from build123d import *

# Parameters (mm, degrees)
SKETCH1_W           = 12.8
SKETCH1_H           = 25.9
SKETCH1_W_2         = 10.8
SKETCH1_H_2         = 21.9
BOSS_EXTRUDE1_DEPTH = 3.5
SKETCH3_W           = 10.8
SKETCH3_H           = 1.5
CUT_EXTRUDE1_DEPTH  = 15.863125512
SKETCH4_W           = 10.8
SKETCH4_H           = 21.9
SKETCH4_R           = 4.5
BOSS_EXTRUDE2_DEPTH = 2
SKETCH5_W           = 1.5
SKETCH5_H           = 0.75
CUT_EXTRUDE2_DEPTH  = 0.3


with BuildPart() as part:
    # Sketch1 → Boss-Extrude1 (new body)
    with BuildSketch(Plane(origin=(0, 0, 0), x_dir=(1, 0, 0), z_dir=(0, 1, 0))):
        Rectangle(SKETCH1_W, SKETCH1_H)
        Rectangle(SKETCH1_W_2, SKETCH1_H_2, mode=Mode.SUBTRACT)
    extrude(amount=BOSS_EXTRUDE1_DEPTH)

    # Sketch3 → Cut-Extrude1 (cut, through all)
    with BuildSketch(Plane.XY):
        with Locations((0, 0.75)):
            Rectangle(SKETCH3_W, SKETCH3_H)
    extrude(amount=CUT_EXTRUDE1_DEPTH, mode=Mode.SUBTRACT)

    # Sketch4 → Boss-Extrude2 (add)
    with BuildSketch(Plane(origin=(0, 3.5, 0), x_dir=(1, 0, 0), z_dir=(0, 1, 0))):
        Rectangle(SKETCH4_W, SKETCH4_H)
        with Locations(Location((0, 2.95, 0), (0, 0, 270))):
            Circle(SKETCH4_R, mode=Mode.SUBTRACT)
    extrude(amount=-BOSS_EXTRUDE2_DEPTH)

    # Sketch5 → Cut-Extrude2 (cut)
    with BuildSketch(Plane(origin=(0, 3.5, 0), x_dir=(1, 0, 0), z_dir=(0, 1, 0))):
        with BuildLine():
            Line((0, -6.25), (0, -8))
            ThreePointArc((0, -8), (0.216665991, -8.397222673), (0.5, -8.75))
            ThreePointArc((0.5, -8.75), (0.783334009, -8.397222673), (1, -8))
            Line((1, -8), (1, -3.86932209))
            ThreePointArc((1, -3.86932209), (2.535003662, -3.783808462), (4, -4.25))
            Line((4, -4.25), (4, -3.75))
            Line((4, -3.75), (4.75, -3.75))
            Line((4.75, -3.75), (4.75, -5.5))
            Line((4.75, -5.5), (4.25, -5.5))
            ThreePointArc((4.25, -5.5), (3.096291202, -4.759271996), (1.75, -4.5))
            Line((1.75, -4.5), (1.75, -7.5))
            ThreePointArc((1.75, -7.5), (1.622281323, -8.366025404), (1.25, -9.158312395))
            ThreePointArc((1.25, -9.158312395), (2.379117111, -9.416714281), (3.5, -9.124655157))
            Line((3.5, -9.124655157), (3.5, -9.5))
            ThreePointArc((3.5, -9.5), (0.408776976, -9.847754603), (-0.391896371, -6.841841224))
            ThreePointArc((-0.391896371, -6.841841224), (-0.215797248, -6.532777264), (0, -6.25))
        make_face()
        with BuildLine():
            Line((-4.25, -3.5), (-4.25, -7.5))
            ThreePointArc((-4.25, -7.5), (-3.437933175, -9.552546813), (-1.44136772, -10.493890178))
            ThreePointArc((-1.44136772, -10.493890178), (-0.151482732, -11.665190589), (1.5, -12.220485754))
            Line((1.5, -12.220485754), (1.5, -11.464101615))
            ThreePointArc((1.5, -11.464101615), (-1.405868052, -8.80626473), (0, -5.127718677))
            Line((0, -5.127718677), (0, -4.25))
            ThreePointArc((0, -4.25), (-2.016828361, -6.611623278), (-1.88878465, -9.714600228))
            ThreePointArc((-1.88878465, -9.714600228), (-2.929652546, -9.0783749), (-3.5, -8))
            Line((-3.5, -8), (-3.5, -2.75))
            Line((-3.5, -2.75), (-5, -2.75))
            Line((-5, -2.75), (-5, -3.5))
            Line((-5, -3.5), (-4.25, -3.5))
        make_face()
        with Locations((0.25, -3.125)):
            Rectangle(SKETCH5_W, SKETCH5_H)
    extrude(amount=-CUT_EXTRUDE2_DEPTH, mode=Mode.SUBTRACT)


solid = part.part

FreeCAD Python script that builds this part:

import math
import FreeCAD as App
import Part
import Sketcher
from FreeCAD import Vector
Q = App.Units.Quantity

doc = App.newDocument("Part")
body = doc.addObject("PartDesign::Body", "Body")

sketch1 = doc.addObject("Sketcher::SketchObject", "Sketch")
body.addObject(sketch1)
sketch1.AttachmentSupport = (doc.XZ_Plane, [""])
sketch1.MapMode = "FlatFace"
sketch1.addGeometry([
    Part.LineSegment(Vector(-6.4, -12.95, 0), Vector(-6.4, 12.95, 0)),
    Part.LineSegment(Vector(-6.4, 12.95, 0), Vector(6.4, 12.95, 0)),
    Part.LineSegment(Vector(6.4, 12.95, 0), Vector(6.4, -12.95, 0)),
    Part.LineSegment(Vector(6.4, -12.95, 0), Vector(-6.4, -12.95, 0)),
    Part.LineSegment(Vector(5.4, 10.95, 0), Vector(-5.4, 10.95, 0)),
    Part.LineSegment(Vector(-5.4, 10.95, 0), Vector(-5.4, -10.95, 0)),
    Part.LineSegment(Vector(-5.4, -10.95, 0), Vector(5.4, -10.95, 0)),
    Part.LineSegment(Vector(5.4, -10.95, 0), Vector(5.4, 10.95, 0)),
], False)
sketch1.addConstraint([
    Sketcher.Constraint("Coincident", 0, 2, 1, 1),
    Sketcher.Constraint("Coincident", 1, 2, 2, 1),
    Sketcher.Constraint("Coincident", 2, 2, 3, 1),
    Sketcher.Constraint("Coincident", 3, 2, 0, 1),
    Sketcher.Constraint("Coincident", 4, 2, 5, 1),
    Sketcher.Constraint("Coincident", 5, 2, 6, 1),
    Sketcher.Constraint("Coincident", 6, 2, 7, 1),
    Sketcher.Constraint("Coincident", 7, 2, 4, 1),
    Sketcher.Constraint("Vertical", 0),
    Sketcher.Constraint("Horizontal", 1),
    Sketcher.Constraint("Vertical", 2),
    Sketcher.Constraint("Horizontal", 3),
    Sketcher.Constraint("Horizontal", 4),
    Sketcher.Constraint("Vertical", 5),
    Sketcher.Constraint("Horizontal", 6),
    Sketcher.Constraint("Vertical", 7),
    Sketcher.Constraint("Symmetric", 0, 2, 2, 2, -1, 1),
    Sketcher.Constraint("Symmetric", 4, 2, 6, 2, -1, 1),
    Sketcher.Constraint("DistanceX", 1, 1, 1, 2, Q("12.8 mm")),
    Sketcher.Constraint("DistanceX", 4, 2, 4, 1, Q("10.8 mm")),
    Sketcher.Constraint("DistanceY", 0, 1, 0, 2, Q("25.9 mm")),
    Sketcher.Constraint("DistanceY", 5, 2, 5, 1, Q("21.9 mm")),
])
pad1 = doc.addObject("PartDesign::Pad", "Pad")
body.addObject(pad1)
pad1.Profile = sketch1
pad1.Length = 3.5
pad1.Reversed = True

sketch2 = doc.addObject("Sketcher::SketchObject", "Sketch001")
body.addObject(sketch2)
sketch2.AttachmentSupport = (doc.XY_Plane, [""])
sketch2.MapMode = "FlatFace"
sketch2.addGeometry([
    Part.LineSegment(Vector(-5.4, 1.5, 0), Vector(-5.4, 0, 0)),
    Part.LineSegment(Vector(-5.4, 0, 0), Vector(5.4, 0, 0)),
    Part.LineSegment(Vector(5.4, 0, 0), Vector(5.4, 1.5, 0)),
    Part.LineSegment(Vector(5.4, 1.5, 0), Vector(-5.4, 1.5, 0)),
], False)
sketch2.addConstraint([
    Sketcher.Constraint("Coincident", 0, 2, 1, 1),
    Sketcher.Constraint("Coincident", 1, 2, 2, 1),
    Sketcher.Constraint("Coincident", 2, 2, 3, 1),
    Sketcher.Constraint("Coincident", 3, 2, 0, 1),
    Sketcher.Constraint("Vertical", 0),
    Sketcher.Constraint("Horizontal", 1),
    Sketcher.Constraint("Vertical", 2),
    Sketcher.Constraint("Horizontal", 3),
    Sketcher.Constraint("Symmetric", 0, 2, 1, 2, -1, 1),
    Sketcher.Constraint("DistanceX", 1, 1, 1, 2, Q("10.8 mm")),
    Sketcher.Constraint("DistanceY", 0, 2, 0, 1, Q("1.5 mm")),
])
pocket1 = doc.addObject("PartDesign::Pocket", "Pocket")
body.addObject(pocket1)
pocket1.Profile = sketch2
pocket1.Type = "ThroughAll"
pocket1.Reversed = True

sketch3 = doc.addObject("Sketcher::SketchObject", "Sketch002")
body.addObject(sketch3)
sketch3.AttachmentSupport = (doc.XZ_Plane, [""])
sketch3.MapMode = "FlatFace"
sketch3.AttachmentOffset = App.Placement(Vector(0, 0, -3.5), App.Rotation())
sketch3.addGeometry([
    Part.LineSegment(Vector(-5.4, -10.95, 0), Vector(-5.4, 10.95, 0)),
    Part.LineSegment(Vector(-5.4, 10.95, 0), Vector(5.4, 10.95, 0)),
    Part.LineSegment(Vector(5.4, 10.95, 0), Vector(5.4, -10.95, 0)),
    Part.LineSegment(Vector(5.4, -10.95, 0), Vector(-5.4, -10.95, 0)),
    Part.Circle(Vector(0, -2.95, 0), Vector(0, 0, 1), 4.5),
], False)
sketch3.addConstraint([
    Sketcher.Constraint("Coincident", 0, 2, 1, 1),
    Sketcher.Constraint("Coincident", 1, 2, 2, 1),
    Sketcher.Constraint("Coincident", 2, 2, 3, 1),
    Sketcher.Constraint("Coincident", 3, 2, 0, 1),
    Sketcher.Constraint("Vertical", 0),
    Sketcher.Constraint("Horizontal", 1),
    Sketcher.Constraint("Vertical", 2),
    Sketcher.Constraint("Horizontal", 3),
    Sketcher.Constraint("Symmetric", 0, 2, 2, 2, -1, 1),
    Sketcher.Constraint("PointOnObject", 4, 3, -2),
    Sketcher.Constraint("Diameter", 4, Q("9 mm")),
    Sketcher.Constraint("DistanceX", 1, 1, 1, 2, Q("10.8 mm")),
    Sketcher.Constraint("DistanceY", 0, 1, 0, 2, Q("21.9 mm")),
    Sketcher.Constraint("DistanceY", 2, 2, 4, 3, Q("8 mm")),
])
pad2 = doc.addObject("PartDesign::Pad", "Pad001")
body.addObject(pad2)
pad2.Profile = sketch3
pad2.Length = 2

sketch4 = doc.addObject("Sketcher::SketchObject", "Sketch003")
body.addObject(sketch4)
sketch4.AttachmentSupport = (doc.XZ_Plane, [""])
sketch4.MapMode = "FlatFace"
sketch4.AttachmentOffset = App.Placement(Vector(0, 0, -3.5), App.Rotation())
sketch4.addGeometry([
    Part.LineSegment(Vector(0, 8, 0), Vector(0, 6.25, 0)),
    Part.ArcOfCircle(Part.Circle(Vector(2, 8, 0), Vector(0, 0, 1), 2.657536), math.radians(-154.163685), math.radians(-138.814075)),
    Part.ArcOfCircle(Part.Circle(Vector(1.752606, 7.880211, 0), Vector(0, 0, 1), 2.382667), math.radians(42.829708), math.radians(205.836315)),
    Part.LineSegment(Vector(3.5, 9.5, 0), Vector(3.5, 9.124655, 0)),
    Part.ArcOfCircle(Part.Circle(Vector(2.342665, 6.97989, 0), Vector(0, 0, 1), 2.437097), math.radians(61.648299), math.radians(116.63768)),
    Part.ArcOfCircle(Part.Circle(Vector(-1.25, 7.5, 0), Vector(0, 0, 1), 3), math.radians(0), math.radians(33.55731)),
    Part.LineSegment(Vector(1.75, 7.5, 0), Vector(1.75, 4.5, 0)),
    Part.ArcOfCircle(Part.Circle(Vector(1.75, 8.125, 0), Vector(0, 0, 1), 3.625), math.radians(-90), math.radians(-46.397181)),
    Part.LineSegment(Vector(4.25, 5.5, 0), Vector(4.75, 5.5, 0)),
    Part.LineSegment(Vector(4.75, 5.5, 0), Vector(4.75, 3.75, 0)),
    Part.LineSegment(Vector(4.75, 3.75, 0), Vector(4, 3.75, 0)),
    Part.LineSegment(Vector(4, 3.75, 0), Vector(4, 4.25, 0)),
    Part.ArcOfCircle(Part.Circle(Vector(2, 8, 0), Vector(0, 0, 1), 4.25), math.radians(-103.608961), math.radians(-61.927513)),
    Part.LineSegment(Vector(1, 3.869322, 0), Vector(1, 8, 0)),
    Part.ArcOfCircle(Part.Circle(Vector(-1.342665, 6.97989, 0), Vector(0, 0, 1), 2.555133), math.radians(23.530647), math.radians(43.849488)),
    Part.ArcOfCircle(Part.Circle(Vector(2.342665, 6.97989, 0), Vector(0, 0, 1), 2.555133), math.radians(136.150512), math.radians(156.469353)),
    Part.LineSegment(Vector(-4.25, 3.5, 0), Vector(-4.25, 7.5, 0)),
    Part.ArcOfCircle(Part.Circle(Vector(-1.25, 7.5, 0), Vector(0, 0, 1), 3), math.radians(93.657337), math.radians(180)),
    Part.ArcOfCircle(Part.Circle(Vector(2, 8, 0), Vector(0, 0, 1), 4.25), math.radians(96.756327), math.radians(144.06991)),
    Part.LineSegment(Vector(1.5, 12.220486, 0), Vector(1.5, 11.464102, 0)),
    Part.ArcOfCircle(Part.Circle(Vector(2, 8, 0), Vector(0, 0, 1), 3.5), math.radians(98.213211), math.radians(235.150095)),
    Part.LineSegment(Vector(0, 5.127719, 0), Vector(0, 4.25, 0)),
    Part.ArcOfCircle(Part.Circle(Vector(2, 8, 0), Vector(0, 0, 1), 4.25), math.radians(156.206885), math.radians(241.927513)),
    Part.ArcOfCircle(Part.Circle(Vector(-1.25, 7.5, 0), Vector(0, 0, 1), 2.304886), math.radians(106.089805), math.radians(167.471192)),
    Part.LineSegment(Vector(-3.5, 8, 0), Vector(-3.5, 2.75, 0)),
    Part.LineSegment(Vector(-3.5, 2.75, 0), Vector(-5, 2.75, 0)),
    Part.LineSegment(Vector(-5, 2.75, 0), Vector(-5, 3.5, 0)),
    Part.LineSegment(Vector(-5, 3.5, 0), Vector(-4.25, 3.5, 0)),
    Part.LineSegment(Vector(-0.5, 2.75, 0), Vector(-0.5, 3.5, 0)),
    Part.LineSegment(Vector(-0.5, 3.5, 0), Vector(1, 3.5, 0)),
    Part.LineSegment(Vector(1, 3.5, 0), Vector(1, 2.75, 0)),
    Part.LineSegment(Vector(1, 2.75, 0), Vector(-0.5, 2.75, 0)),
], False)
sketch4.addConstraint([
    Sketcher.Constraint("Coincident", 0, 2, 1, 2),
    Sketcher.Constraint("Tangent", 1, 1, 2, 2),
    Sketcher.Constraint("Coincident", 2, 1, 3, 1),
    Sketcher.Constraint("Coincident", 3, 2, 4, 1),
    Sketcher.Constraint("Coincident", 4, 2, 5, 2),
    Sketcher.Constraint("Tangent", 5, 1, 6, 1),
    Sketcher.Constraint("Coincident", 6, 2, 7, 1),
    Sketcher.Constraint("Coincident", 7, 2, 8, 1),
    Sketcher.Constraint("Coincident", 8, 2, 9, 1),
    Sketcher.Constraint("Coincident", 9, 2, 10, 1),
    Sketcher.Constraint("Coincident", 10, 2, 11, 1),
    Sketcher.Constraint("Coincident", 11, 2, 12, 2),
    Sketcher.Constraint("Coincident", 12, 1, 13, 1),
    Sketcher.Constraint("Coincident", 13, 2, 14, 1),
    Sketcher.Constraint("Coincident", 14, 2, 15, 1),
    Sketcher.Constraint("Coincident", 15, 2, 0, 1),
    Sketcher.Constraint("Tangent", 16, 2, 17, 2),
    Sketcher.Constraint("Coincident", 17, 1, 18, 2),
    Sketcher.Constraint("Coincident", 18, 1, 19, 1),
    Sketcher.Constraint("Coincident", 19, 2, 20, 1),
    Sketcher.Constraint("Coincident", 20, 2, 21, 1),
    Sketcher.Constraint("Coincident", 21, 2, 22, 2),
    Sketcher.Constraint("Coincident", 22, 1, 23, 1),
    Sketcher.Constraint("Coincident", 23, 2, 24, 1),
    Sketcher.Constraint("Coincident", 24, 2, 25, 1),
    Sketcher.Constraint("Coincident", 25, 2, 26, 1),
    Sketcher.Constraint("Coincident", 26, 2, 27, 1),
    Sketcher.Constraint("Coincident", 27, 2, 16, 1),
    Sketcher.Constraint("Coincident", 28, 2, 29, 1),
    Sketcher.Constraint("Coincident", 29, 2, 30, 1),
    Sketcher.Constraint("Coincident", 30, 2, 31, 1),
    Sketcher.Constraint("Coincident", 31, 2, 28, 1),
    Sketcher.Constraint("Vertical", 0),
    Sketcher.Constraint("Vertical", 3),
    Sketcher.Constraint("Vertical", 6),
    Sketcher.Constraint("Horizontal", 8),
    Sketcher.Constraint("Vertical", 9),
    Sketcher.Constraint("Horizontal", 10),
    Sketcher.Constraint("Vertical", 11),
    Sketcher.Constraint("Vertical", 13),
    Sketcher.Constraint("Vertical", 16),
    Sketcher.Constraint("Vertical", 19),
    Sketcher.Constraint("Vertical", 21),
    Sketcher.Constraint("Vertical", 24),
    Sketcher.Constraint("Horizontal", 25),
    Sketcher.Constraint("Vertical", 26),
    Sketcher.Constraint("Horizontal", 27),
    Sketcher.Constraint("Vertical", 28),
    Sketcher.Constraint("Horizontal", 29),
    Sketcher.Constraint("Vertical", 30),
    Sketcher.Constraint("Horizontal", 31),
    Sketcher.Constraint("Coincident", 12, 3, 1, 3),
    Sketcher.Constraint("Coincident", 15, 3, 4, 3),
    Sketcher.Constraint("Coincident", 17, 3, 5, 3),
    Sketcher.Constraint("Coincident", 18, 3, 1, 3),
    Sketcher.Constraint("Coincident", 20, 3, 1, 3),
    Sketcher.Constraint("Coincident", 22, 3, 1, 3),
    Sketcher.Constraint("Coincident", 23, 3, 5, 3),
    Sketcher.Constraint("Equal", 14, 15),
    Sketcher.Constraint("Equal", 5, 17),
    Sketcher.Constraint("Equal", 12, 18),
    Sketcher.Constraint("Equal", 18, 22),
    Sketcher.Constraint("PointOnObject", 0, 2, -2),
    Sketcher.Constraint("PointOnObject", 20, 2, -2),
    Sketcher.Constraint("Horizontal", 4, 3, 14, 3),
    Sketcher.Constraint("Horizontal", 22, 3, 13, 2),
    Sketcher.Constraint("Horizontal", 13, 2, 15, 2),
    Sketcher.Constraint("Horizontal", 11, 2, 21, 2),
    Sketcher.Constraint("Horizontal", 15, 2, 23, 2),
    Sketcher.Constraint("Horizontal", 27, 2, 28, 2),
    Sketcher.Constraint("Horizontal", 25, 2, 30, 2),
    Sketcher.Constraint("Vertical", 7, 3, 5, 1),
    Sketcher.Constraint("Vertical", 13, 2, 29, 2),
    Sketcher.Constraint("Equal", 10, 27),
    Sketcher.Constraint("Equal", 25, 29),
    Sketcher.Constraint("Equal", 0, 9),
    Sketcher.Constraint("Equal", 8, 11),
    Sketcher.Constraint("Equal", 27, 26),
    Sketcher.Constraint("Radius", 5, Q("3 mm")),
    Sketcher.Constraint("Radius", 20, Q("3.5 mm")),
    Sketcher.Constraint("DistanceY", 6, 2, 6, 1, Q("3 mm")),
    Sketcher.Constraint("DistanceY", 16, 1, 16, 2, Q("4 mm")),
    Sketcher.Constraint("Radius", 12, Q("4.25 mm")),
    Sketcher.Constraint("DistanceX", 8, 1, 8, 2, Q("0.5 mm")),
    Sketcher.Constraint("DistanceX", 25, 2, 25, 1, Q("1.5 mm")),
    Sketcher.Constraint("DistanceX", -1, 1, 1, 3, Q("2 mm")),
    Sketcher.Constraint("DistanceY", -1, 1, 1, 3, Q("8 mm")),
    Sketcher.Constraint("DistanceX", -1, 1, 12, 1, Q("1 mm")),
    Sketcher.Constraint("DistanceX", 25, 2, -1, 1, Q("5 mm")),
    Sketcher.Constraint("Radius", 7, Q("3.625 mm")),
    Sketcher.Constraint("DistanceX", 18, 1, 2, 1, Q("2 mm")),
    Sketcher.Constraint("DistanceX", 14, 2, 18, 1, Q("1 mm")),
    Sketcher.Constraint("DistanceY", 21, 2, 0, 2, Q("2 mm")),
    Sketcher.Constraint("DistanceX", 10, 2, 10, 1, Q("0.75 mm")),
    Sketcher.Constraint("DistanceY", -1, 1, 2, 1, Q("9.5 mm")),
    Sketcher.Constraint("DistanceX", 4, 2, 7, 3, Q("0.5 mm")),
    Sketcher.Constraint("DistanceY", -1, 1, 14, 2, Q("8.75 mm")),
    Sketcher.Constraint("Radius", 2, Q("2.382667 mm")),
    Sketcher.Constraint("Radius", 4, Q("2.437097 mm")),
])
pocket2 = doc.addObject("PartDesign::Pocket", "Pocket001")
body.addObject(pocket2)
pocket2.Profile = sketch4
pocket2.Length = 0.3
pocket2.Reversed = True

doc.recompute()
